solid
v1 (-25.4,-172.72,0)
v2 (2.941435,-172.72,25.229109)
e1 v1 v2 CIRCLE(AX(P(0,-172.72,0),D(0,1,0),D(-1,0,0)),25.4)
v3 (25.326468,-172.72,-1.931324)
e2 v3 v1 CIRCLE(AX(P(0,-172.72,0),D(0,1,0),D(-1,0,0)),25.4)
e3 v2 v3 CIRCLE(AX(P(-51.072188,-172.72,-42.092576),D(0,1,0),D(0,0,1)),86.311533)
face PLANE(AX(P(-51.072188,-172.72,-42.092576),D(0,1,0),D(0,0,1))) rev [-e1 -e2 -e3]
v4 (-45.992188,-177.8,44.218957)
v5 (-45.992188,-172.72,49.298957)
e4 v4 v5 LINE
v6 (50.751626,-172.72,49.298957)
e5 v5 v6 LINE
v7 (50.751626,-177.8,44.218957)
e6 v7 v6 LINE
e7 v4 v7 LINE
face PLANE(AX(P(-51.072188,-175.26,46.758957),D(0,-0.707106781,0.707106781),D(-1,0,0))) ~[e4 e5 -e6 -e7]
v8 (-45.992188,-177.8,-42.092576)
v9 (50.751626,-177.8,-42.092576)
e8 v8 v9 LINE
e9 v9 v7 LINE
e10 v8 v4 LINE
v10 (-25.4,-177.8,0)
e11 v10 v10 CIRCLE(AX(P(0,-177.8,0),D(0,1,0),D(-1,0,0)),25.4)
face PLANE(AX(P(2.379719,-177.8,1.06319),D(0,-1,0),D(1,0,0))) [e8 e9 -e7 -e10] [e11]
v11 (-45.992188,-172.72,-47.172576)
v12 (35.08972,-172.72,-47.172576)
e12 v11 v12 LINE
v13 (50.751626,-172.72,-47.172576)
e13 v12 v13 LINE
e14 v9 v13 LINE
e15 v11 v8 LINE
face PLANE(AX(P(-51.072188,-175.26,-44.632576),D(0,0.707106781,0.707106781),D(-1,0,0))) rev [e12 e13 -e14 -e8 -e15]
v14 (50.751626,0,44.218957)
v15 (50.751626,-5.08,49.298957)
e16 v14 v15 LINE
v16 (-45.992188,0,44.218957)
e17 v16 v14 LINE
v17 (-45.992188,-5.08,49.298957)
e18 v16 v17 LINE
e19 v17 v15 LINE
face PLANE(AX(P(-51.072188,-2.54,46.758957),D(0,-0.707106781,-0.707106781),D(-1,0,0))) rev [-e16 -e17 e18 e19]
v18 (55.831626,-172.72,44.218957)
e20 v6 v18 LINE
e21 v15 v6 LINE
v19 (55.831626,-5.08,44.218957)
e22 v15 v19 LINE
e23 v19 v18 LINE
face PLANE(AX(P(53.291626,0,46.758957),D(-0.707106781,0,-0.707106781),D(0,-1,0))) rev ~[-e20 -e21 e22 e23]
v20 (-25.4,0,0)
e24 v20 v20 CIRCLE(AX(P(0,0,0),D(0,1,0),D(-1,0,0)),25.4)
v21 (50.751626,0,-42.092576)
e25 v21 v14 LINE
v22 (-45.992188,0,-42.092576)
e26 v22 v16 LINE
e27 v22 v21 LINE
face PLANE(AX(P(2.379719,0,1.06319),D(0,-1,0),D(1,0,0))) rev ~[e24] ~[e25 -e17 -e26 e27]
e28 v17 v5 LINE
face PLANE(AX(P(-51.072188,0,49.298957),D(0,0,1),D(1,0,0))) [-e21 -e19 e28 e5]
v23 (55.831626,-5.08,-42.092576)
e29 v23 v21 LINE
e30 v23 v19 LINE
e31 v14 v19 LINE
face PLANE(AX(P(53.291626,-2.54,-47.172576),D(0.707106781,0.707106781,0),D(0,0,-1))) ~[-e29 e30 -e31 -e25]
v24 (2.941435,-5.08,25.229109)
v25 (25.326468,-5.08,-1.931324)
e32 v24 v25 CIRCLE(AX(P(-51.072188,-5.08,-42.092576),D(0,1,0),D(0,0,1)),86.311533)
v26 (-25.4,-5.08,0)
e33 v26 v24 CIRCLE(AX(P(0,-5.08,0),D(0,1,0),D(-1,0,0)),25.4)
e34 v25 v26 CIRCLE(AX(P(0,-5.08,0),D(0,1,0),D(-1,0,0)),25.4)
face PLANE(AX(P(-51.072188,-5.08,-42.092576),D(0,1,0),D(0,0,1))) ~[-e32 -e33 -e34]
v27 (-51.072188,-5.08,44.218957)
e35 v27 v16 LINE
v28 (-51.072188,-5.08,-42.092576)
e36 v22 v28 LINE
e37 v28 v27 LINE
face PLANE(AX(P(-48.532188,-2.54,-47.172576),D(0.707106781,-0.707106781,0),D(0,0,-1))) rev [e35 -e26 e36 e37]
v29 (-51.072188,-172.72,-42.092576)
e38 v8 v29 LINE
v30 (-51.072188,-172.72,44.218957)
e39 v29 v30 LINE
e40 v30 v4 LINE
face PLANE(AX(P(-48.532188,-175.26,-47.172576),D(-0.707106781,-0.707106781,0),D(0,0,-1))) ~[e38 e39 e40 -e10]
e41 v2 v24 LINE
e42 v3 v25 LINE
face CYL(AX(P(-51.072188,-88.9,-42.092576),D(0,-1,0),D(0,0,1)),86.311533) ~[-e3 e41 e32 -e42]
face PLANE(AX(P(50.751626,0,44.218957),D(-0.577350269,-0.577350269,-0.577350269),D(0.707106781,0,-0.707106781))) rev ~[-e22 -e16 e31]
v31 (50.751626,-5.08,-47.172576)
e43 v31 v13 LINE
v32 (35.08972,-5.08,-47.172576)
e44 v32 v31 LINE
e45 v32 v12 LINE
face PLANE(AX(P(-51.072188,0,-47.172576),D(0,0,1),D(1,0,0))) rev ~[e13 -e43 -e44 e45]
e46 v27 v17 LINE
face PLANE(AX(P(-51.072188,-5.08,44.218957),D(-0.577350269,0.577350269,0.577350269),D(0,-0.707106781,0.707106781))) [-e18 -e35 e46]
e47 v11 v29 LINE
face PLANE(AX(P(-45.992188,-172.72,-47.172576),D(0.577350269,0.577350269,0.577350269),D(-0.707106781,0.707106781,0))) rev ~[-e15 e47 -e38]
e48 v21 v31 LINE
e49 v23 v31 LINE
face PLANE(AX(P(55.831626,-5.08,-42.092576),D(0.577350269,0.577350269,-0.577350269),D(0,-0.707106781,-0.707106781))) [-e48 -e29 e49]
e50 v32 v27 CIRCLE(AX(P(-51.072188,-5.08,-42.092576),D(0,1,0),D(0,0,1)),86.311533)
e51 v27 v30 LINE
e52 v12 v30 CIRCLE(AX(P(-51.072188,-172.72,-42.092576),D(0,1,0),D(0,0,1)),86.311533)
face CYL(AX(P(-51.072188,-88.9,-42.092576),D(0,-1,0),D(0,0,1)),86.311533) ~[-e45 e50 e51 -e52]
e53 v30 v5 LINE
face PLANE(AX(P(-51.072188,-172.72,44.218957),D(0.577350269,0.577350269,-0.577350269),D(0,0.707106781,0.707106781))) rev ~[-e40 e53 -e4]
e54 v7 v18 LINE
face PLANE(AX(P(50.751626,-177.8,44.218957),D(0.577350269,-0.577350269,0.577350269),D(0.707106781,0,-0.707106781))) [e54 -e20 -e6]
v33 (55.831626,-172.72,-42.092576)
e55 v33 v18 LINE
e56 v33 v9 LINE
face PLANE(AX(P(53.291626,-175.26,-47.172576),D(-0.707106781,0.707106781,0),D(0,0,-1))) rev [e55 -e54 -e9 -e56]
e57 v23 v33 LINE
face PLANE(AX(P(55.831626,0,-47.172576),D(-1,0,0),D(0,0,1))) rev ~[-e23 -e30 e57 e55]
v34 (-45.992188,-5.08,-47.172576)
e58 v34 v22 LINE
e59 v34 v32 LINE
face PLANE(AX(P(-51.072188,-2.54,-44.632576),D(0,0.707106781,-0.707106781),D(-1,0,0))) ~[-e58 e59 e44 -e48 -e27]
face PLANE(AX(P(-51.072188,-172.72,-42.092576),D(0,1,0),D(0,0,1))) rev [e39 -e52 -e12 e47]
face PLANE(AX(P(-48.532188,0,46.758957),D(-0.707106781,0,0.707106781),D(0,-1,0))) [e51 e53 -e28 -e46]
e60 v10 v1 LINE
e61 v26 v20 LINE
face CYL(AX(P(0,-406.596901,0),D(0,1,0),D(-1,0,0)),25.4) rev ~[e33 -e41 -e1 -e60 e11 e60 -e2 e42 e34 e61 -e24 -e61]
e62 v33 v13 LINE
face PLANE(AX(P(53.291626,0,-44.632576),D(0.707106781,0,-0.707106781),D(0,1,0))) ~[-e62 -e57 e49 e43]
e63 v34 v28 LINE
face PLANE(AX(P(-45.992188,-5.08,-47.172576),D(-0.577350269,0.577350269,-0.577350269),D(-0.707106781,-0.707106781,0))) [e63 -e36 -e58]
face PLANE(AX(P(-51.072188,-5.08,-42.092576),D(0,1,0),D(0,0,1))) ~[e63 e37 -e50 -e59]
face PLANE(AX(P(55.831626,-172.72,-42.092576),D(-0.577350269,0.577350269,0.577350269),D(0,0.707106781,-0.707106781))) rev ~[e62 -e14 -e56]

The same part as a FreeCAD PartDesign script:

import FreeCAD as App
import Part
import Sketcher
from FreeCAD import Vector
Q = App.Units.Quantity

doc = App.newDocument("Part")
body = doc.addObject("PartDesign::Body", "Body")

sketch1 = body.newObject("Sketcher::SketchObject", "Sketch")
sketch1.AttachmentSupport = (doc.getObject("XZ_Plane"), [""])
sketch1.MapMode = "FlatFace"
sketch1.addGeometry(Part.LineSegment(Vector(-51.072188, 49.298957, 0), Vector(-51.072188, -47.172576, 0)), False)
sketch1.addGeometry(Part.LineSegment(Vector(-51.072188, -47.172576, 0), Vector(55.831626, -47.172576, 0)), False)
sketch1.addGeometry(Part.LineSegment(Vector(55.831626, -47.172576, 0), Vector(55.831626, 49.298957, 0)), False)
sketch1.addGeometry(Part.LineSegment(Vector(55.831626, 49.298957, 0), Vector(-51.072188, 49.298957, 0)), False)
sketch1.addConstraint(Sketcher.Constraint("Coincident", 0, 2, 1, 1))
sketch1.addConstraint(Sketcher.Constraint("Coincident", 1, 2, 2, 1))
sketch1.addConstraint(Sketcher.Constraint("Coincident", 2, 2, 3, 1))
sketch1.addConstraint(Sketcher.Constraint("Coincident", 3, 2, 0, 1))
sketch1.addConstraint(Sketcher.Constraint("Vertical", 0))
sketch1.addConstraint(Sketcher.Constraint("Horizontal", 1))
sketch1.addConstraint(Sketcher.Constraint("Vertical", 2))
sketch1.addConstraint(Sketcher.Constraint("Horizontal", 3))
sketch1.addConstraint(Sketcher.Constraint("DistanceX", 1, 1, 1, 2, Q("106.903814 mm")))
sketch1.addConstraint(Sketcher.Constraint("DistanceY", 0, 2, 0, 1, Q("96.471533 mm")))
sketch1.addConstraint(Sketcher.Constraint("DistanceX", 0, 2, -1, 1, Q("51.072188 mm")))
sketch1.addConstraint(Sketcher.Constraint("DistanceY", 0, 2, -1, 1, Q("47.172576 mm")))
pad1 = body.newObject("PartDesign::Pad", "Pad")
pad1.Profile = sketch1
pad1.Length = Q("7 in")
doc.recompute()

chamfer = body.newObject("PartDesign::Chamfer", "Chamfer")
chamfer.Base = (pad1, ["Edge1"])
chamfer.UseAllEdges = True
chamfer.Size = Q("0.2 in")

sketch2 = body.newObject("Sketcher::SketchObject", "Sketch001")
sketch2.AttachmentSupport = (doc.getObject("XZ_Plane"), [""])
sketch2.MapMode = "FlatFace"
sketch2.AttachmentOffset = App.Placement(Vector(0, 0, 7 * 25.4), App.Rotation())
sketch2.addGeometry(Part.Circle(Vector(0, 0, 0), Vector(0, 0, 1), 25.4), False)
sketch2.addConstraint(Sketcher.Constraint("Coincident", 0, 3, -1, 1))
sketch2.addConstraint(Sketcher.Constraint("Diameter", 0, Q("2 in")))
doc.recompute()
hole = body.newObject("PartDesign::Hole", "Hole")
hole.Profile = sketch2
hole.ThreadType = "None"
hole.Diameter = Q("2 in")
hole.DepthType = "ThroughAll"

sketch3 = body.newObject("Sketcher::SketchObject", "Sketch002")
sketch3.AttachmentSupport = (doc.getObject("YZ_Plane"), [""])
sketch3.MapMode = "FlatFace"
sketch3.AttachmentOffset = App.Placement(Vector(0, 0, -51.072188), App.Rotation())
sketch3.addGeometry(Part.LineSegment(Vector(-5.08, 44.218957, 0), Vector(-5.08, -42.092576, 0)), False)
sketch3.addGeometry(Part.LineSegment(Vector(-5.08, -42.092576, 0), Vector(-172.72, -42.092576, 0)), False)
sketch3.addGeometry(Part.LineSegment(Vector(-172.72, -42.092576, 0), Vector(-172.72, 44.218957, 0)), False)
sketch3.addGeometry(Part.LineSegment(Vector(-172.72, 44.218957, 0), Vector(-5.08, 44.218957, 0)), False)
sketch3.addGeometry(Part.LineSegment(Vector(-172.72, -42.092576, 0), Vector(-5.08, -42.092576, 0)), True)
sketch3.addConstraint(Sketcher.Constraint("Coincident", 0, 2, 1, 1))
sketch3.addConstraint(Sketcher.Constraint("Coincident", 1, 2, 2, 1))
sketch3.addConstraint(Sketcher.Constraint("Coincident", 2, 2, 3, 1))
sketch3.addConstraint(Sketcher.Constraint("Coincident", 3, 2, 0, 1))
sketch3.addConstraint(Sketcher.Constraint("Vertical", 0))
sketch3.addConstraint(Sketcher.Constraint("Horizontal", 1))
sketch3.addConstraint(Sketcher.Constraint("Vertical", 2))
sketch3.addConstraint(Sketcher.Constraint("Horizontal", 3))
sketch3.addConstraint(Sketcher.Constraint("Horizontal", 4))
sketch3.addConstraint(Sketcher.Constraint("Coincident", 4, 1, 1, 2))
sketch3.addConstraint(Sketcher.Constraint("Vertical", 3, 2, 4, 2))
sketch3.addConstraint(Sketcher.Constraint("DistanceX", 1, 2, 1, 1, Q("6.6 in")))
sketch3.addConstraint(Sketcher.Constraint("DistanceX", 0, 2, -1, 1, Q("0.2 in")))
sketch3.addConstraint(Sketcher.Constraint("DistanceY", 0, 2, 0, 1, Q("86.311533 mm")))
sketch3.addConstraint(Sketcher.Constraint("DistanceY", 0, 2, -1, 1, Q("42.092576 mm")))
revolution = body.newObject("PartDesign::Revolution", "Revolution")
revolution.Profile = sketch3
revolution.ReferenceAxis = (sketch3, ["Axis0"])
revolution.Angle = 360

doc.recompute()
